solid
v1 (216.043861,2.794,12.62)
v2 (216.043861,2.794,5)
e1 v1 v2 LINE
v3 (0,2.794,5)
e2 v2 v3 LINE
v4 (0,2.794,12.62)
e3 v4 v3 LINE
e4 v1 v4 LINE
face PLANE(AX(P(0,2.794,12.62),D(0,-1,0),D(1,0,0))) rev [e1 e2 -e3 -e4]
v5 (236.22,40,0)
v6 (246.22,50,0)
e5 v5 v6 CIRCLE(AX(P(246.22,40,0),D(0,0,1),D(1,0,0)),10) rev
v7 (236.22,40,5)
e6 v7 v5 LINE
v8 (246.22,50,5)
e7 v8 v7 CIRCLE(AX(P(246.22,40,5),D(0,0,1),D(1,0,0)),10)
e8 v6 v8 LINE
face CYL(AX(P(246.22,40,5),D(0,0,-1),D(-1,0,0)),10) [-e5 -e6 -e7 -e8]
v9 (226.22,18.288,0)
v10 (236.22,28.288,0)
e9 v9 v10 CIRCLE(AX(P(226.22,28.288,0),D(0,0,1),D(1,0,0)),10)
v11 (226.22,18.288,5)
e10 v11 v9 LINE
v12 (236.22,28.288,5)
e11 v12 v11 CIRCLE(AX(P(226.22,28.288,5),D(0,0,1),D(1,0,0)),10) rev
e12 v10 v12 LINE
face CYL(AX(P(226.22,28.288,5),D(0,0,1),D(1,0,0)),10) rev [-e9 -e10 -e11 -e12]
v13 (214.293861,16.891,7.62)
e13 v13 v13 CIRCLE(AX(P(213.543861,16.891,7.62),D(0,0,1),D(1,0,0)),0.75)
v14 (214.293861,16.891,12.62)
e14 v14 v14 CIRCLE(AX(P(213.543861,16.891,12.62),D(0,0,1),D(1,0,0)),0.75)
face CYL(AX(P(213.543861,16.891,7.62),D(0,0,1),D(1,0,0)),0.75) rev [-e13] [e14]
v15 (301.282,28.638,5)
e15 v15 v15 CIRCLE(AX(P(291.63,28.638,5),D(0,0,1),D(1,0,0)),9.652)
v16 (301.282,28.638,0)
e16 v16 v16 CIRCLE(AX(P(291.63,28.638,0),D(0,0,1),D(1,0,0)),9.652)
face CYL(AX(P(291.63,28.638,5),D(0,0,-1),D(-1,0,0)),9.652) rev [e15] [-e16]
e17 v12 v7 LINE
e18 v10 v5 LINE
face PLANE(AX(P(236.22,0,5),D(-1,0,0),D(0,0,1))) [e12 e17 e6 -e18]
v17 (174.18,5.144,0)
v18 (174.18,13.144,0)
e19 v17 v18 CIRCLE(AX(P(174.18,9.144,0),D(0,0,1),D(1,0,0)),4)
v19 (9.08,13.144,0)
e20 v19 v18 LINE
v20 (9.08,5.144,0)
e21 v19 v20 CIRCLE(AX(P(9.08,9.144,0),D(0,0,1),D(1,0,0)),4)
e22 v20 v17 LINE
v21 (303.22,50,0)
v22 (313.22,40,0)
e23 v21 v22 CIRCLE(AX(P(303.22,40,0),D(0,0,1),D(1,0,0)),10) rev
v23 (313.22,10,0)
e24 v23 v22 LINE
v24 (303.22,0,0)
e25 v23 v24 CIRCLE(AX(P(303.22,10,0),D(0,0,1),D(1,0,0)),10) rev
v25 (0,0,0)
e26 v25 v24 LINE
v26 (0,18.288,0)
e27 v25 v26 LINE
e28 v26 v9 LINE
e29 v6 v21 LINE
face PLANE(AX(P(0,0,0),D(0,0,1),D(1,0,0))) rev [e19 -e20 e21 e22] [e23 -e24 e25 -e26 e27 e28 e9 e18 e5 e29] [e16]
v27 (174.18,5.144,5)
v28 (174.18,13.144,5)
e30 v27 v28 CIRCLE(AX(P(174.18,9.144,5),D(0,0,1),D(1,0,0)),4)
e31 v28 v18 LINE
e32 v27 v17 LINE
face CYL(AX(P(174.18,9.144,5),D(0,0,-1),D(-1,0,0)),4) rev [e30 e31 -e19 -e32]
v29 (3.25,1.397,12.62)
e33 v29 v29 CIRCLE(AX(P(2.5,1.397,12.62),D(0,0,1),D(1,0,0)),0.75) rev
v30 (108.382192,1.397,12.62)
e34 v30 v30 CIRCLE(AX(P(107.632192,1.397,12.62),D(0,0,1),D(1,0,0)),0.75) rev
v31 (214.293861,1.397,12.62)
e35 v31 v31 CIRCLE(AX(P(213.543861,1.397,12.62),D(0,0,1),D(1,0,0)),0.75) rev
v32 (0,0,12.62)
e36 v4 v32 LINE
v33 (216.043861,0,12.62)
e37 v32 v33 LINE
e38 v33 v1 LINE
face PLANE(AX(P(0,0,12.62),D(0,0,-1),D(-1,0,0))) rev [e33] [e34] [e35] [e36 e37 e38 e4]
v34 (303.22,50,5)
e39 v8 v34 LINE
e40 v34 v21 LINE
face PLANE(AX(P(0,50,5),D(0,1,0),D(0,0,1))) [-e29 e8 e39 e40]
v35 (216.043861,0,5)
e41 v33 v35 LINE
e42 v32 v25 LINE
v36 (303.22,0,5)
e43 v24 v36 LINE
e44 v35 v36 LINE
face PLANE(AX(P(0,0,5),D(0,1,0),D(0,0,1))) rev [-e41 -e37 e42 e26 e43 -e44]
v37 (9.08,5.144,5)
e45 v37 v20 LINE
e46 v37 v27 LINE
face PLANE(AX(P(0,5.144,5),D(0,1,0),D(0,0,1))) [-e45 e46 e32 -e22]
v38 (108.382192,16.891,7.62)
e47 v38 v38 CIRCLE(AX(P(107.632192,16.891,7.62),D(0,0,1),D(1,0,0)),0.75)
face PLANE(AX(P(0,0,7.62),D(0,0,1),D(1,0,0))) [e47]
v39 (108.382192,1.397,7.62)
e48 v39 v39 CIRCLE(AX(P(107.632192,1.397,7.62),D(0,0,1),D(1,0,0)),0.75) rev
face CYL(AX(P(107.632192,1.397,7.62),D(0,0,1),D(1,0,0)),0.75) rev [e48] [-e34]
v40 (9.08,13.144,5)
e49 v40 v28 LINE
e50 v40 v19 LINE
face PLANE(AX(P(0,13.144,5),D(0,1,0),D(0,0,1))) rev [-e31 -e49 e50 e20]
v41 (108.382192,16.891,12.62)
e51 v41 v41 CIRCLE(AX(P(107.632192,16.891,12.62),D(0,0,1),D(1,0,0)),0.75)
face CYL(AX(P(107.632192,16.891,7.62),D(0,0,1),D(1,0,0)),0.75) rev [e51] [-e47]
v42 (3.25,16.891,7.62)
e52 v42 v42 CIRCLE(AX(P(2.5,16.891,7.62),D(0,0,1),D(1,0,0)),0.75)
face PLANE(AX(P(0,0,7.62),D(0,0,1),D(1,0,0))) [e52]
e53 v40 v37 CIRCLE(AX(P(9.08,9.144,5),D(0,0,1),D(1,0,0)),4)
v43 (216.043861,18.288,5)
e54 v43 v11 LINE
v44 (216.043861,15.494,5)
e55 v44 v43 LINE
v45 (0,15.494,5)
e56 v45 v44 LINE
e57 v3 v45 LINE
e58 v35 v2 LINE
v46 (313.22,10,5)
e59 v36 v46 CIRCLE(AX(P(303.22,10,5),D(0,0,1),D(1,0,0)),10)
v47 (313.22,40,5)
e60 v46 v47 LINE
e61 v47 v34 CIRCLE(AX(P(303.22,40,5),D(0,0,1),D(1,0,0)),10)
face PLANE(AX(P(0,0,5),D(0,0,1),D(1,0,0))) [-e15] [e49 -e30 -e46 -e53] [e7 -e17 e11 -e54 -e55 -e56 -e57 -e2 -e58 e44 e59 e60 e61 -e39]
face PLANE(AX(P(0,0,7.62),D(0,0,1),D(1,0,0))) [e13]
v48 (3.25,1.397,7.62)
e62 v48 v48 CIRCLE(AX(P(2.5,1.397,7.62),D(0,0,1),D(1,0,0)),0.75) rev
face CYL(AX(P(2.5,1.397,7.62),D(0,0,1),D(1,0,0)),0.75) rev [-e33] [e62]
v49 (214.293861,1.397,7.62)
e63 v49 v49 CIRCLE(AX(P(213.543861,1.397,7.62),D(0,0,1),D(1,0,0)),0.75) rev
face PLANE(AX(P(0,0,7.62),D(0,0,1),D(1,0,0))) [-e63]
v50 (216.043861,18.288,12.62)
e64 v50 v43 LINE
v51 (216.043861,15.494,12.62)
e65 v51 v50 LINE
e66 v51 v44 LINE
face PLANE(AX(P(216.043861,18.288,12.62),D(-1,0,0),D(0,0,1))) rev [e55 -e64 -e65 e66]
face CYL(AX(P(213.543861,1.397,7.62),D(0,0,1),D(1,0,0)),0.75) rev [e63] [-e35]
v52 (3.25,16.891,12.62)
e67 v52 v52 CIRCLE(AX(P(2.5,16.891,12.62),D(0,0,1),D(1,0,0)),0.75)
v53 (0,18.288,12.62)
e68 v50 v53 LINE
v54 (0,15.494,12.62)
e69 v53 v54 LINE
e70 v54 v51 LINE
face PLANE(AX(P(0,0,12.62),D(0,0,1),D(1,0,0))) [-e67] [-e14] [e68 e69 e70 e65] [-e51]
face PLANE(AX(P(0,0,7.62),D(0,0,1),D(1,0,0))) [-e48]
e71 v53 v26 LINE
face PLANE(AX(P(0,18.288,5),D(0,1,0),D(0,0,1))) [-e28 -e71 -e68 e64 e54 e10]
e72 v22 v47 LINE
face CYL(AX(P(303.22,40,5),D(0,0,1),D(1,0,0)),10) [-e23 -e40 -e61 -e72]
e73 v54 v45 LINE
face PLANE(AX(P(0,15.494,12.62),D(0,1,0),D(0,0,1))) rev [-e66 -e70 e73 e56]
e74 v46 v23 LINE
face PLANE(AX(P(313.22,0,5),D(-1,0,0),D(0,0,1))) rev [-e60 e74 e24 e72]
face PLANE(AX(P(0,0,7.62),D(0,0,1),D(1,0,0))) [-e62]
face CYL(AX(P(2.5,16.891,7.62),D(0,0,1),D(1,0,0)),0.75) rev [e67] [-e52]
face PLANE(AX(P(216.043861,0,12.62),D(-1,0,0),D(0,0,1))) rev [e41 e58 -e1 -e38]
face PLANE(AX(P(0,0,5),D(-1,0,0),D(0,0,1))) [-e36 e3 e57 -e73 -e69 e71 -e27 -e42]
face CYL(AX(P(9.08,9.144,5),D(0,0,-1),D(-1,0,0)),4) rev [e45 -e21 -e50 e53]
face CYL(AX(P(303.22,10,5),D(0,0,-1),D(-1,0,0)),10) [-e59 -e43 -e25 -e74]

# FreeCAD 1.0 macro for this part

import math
import FreeCAD as App
import Part
import Sketcher
from FreeCAD import Vector


def edges_at(feature, points):
    """Names of the edges that pass closest to the given points."""
    edges = feature.Shape.Edges
    near = lambda p: min(range(len(edges)), key=lambda i: edges[i].distToShape(Part.Vertex(*p))[0])
    return sorted({f"Edge{near(p) + 1}" for p in points})

doc = App.newDocument("Part")
params = doc.addObject("Spreadsheet::Sheet", "Params")
for row, (alias, value) in enumerate([
    ("sketch1_radius", "4 mm"),
    ("sketch1_width", "77 mm"),
    ("sketch1_height", "50 mm"),
    ("sketch1_width2", "165.1 mm"),
    ("sketch1_width3", "313.22 mm"),
    ("pad1_length", "5 mm"),
    ("fillet_radius", "10 mm"),
    ("pad2_length", "7.62 mm"),
    ("sketch3_diameter", "1.5 mm"),
    ("pocket1_length", "5 mm"),
], start=1):
    params.set(f"A{row}", alias)
    params.set(f"B{row}", "=" + value)
    params.setAlias(f"B{row}", alias)

body = doc.addObject("PartDesign::Body", "Body")

sketch1 = body.newObject("Sketcher::SketchObject", "Sketch")
sketch1.AttachmentSupport = (doc.getObject("XY_Plane"), [""])
sketch1.MapMode = "FlatFace"
sketch1.addGeometry([
    Part.LineSegment(Vector(0, 18.3, 0), Vector(0, 0, 0)),
    Part.LineSegment(Vector(0, 0, 0), Vector(313.2, 0, 0)),
    Part.LineSegment(Vector(313.2, 0, 0), Vector(313.2, 50, 0)),
    Part.LineSegment(Vector(313.2, 50, 0), Vector(236.2, 50, 0)),
    Part.LineSegment(Vector(236.2, 50, 0), Vector(236.2, 18.3, 0)),
    Part.LineSegment(Vector(236.2, 18.3, 0), Vector(0, 18.3, 0)),
    Part.ArcOfCircle(Part.Circle(Vector(174.2, 9.1, 0), Vector(0, 0, 1), 4), math.radians(-90), math.radians(90)),
    Part.LineSegment(Vector(174.2, 5.1, 0), Vector(9.1, 5.1, 0)),
    Part.ArcOfCircle(Part.Circle(Vector(9.1, 9.1, 0), Vector(0, 0, 1), 4), math.radians(90), math.radians(270)),
    Part.LineSegment(Vector(9.1, 13.1, 0), Vector(174.2, 13.1, 0)),
    Part.Circle(Vector(291.6, 28.6, 0), Vector(0, 0, 1), 9.7),
], False)
sketch1.addConstraint([
    Sketcher.Constraint("Coincident", 0, 2, 1, 1),
    Sketcher.Constraint("Coincident", 1, 2, 2, 1),
    Sketcher.Constraint("Coincident", 2, 2, 3, 1),
    Sketcher.Constraint("Coincident", 3, 2, 4, 1),
    Sketcher.Constraint("Coincident", 4, 2, 5, 1),
    Sketcher.Constraint("Coincident", 5, 2, 0, 1),
    Sketcher.Constraint("Tangent", 6, 1, 7, 1),
    Sketcher.Constraint("Tangent", 7, 2, 8, 2),
    Sketcher.Constraint("Tangent", 8, 1, 9, 1),
    Sketcher.Constraint("Tangent", 9, 2, 6, 2),
    Sketcher.Constraint("Vertical", 0),
    Sketcher.Constraint("Horizontal", 1),
    Sketcher.Constraint("Vertical", 2),
    Sketcher.Constraint("Horizontal", 3),
    Sketcher.Constraint("Vertical", 4),
    Sketcher.Constraint("Horizontal", 5),
    Sketcher.Constraint("Horizontal", 7),
    Sketcher.Constraint("Horizontal", 9),
    Sketcher.Constraint("Coincident", 0, 2, -1, 1),
    Sketcher.Constraint("Radius", 6, 4.0),
    Sketcher.Constraint("DistanceX", 3, 2, 3, 1, 77.0),
    Sketcher.Constraint("DistanceY", 2, 1, 2, 2, 50.0),
    Sketcher.Constraint("Diameter", 10, 19.304),
    Sketcher.Constraint("DistanceX", 7, 2, 7, 1, 165.1),
    Sketcher.Constraint("DistanceX", 1, 1, 1, 2, 313.22),
    Sketcher.Constraint("DistanceY", 0, 2, 0, 1, 18.288),
    Sketcher.Constraint("DistanceX", -1, 1, 6, 3, 174.18),
    Sketcher.Constraint("DistanceX", -1, 1, 10, 3, 291.63),
    Sketcher.Constraint("DistanceY", 4, 2, 10, 3, 10.35),
    Sketcher.Constraint("DistanceY", -1, 1, 6, 3, 9.144),
])
sketch1.setExpression("Constraints[19]", "Params.sketch1_radius")
sketch1.setExpression("Constraints[20]", "Params.sketch1_width")
sketch1.setExpression("Constraints[21]", "Params.sketch1_height")
sketch1.setExpression("Constraints[23]", "Params.sketch1_width2")
sketch1.setExpression("Constraints[24]", "Params.sketch1_width3")
pad1 = body.newObject("PartDesign::Pad", "Pad")
pad1.Profile = sketch1
pad1.setExpression("Length", "Params.pad1_length")
doc.recompute()

fillet = body.newObject("PartDesign::Fillet", "Fillet")
fillet.Base = (pad1, edges_at(pad1, [
    (236.22, 18.288, 2.5),
    (236.22, 50, 2.5),
    (313.22, 50, 2.5),
    (313.22, 0, 2.5),
]))
fillet.setExpression("Radius", "Params.fillet_radius")

sketch2 = body.newObject("Sketcher::SketchObject", "Sketch001")
sketch2.AttachmentSupport = (doc.getObject("XY_Plane"), [""])
sketch2.MapMode = "FlatFace"
sketch2.AttachmentOffset = App.Placement(Vector(0, 0, 5), App.Rotation())
sketch2.addGeometry([
    Part.LineSegment(Vector(0, 18.3, 0), Vector(0, 15.5, 0)),
    Part.LineSegment(Vector(0, 15.5, 0), Vector(216, 15.5, 0)),
    Part.LineSegment(Vector(216, 15.5, 0), Vector(216, 18.3, 0)),
    Part.LineSegment(Vector(216, 18.3, 0), Vector(0, 18.3, 0)),
    Part.LineSegment(Vector(0, 2.8, 0), Vector(0, 0, 0)),
    Part.LineSegment(Vector(0, 0, 0), Vector(216, 0, 0)),
    Part.LineSegment(Vector(216, 0, 0), Vector(216, 2.8, 0)),
    Part.LineSegment(Vector(216, 2.8, 0), Vector(0, 2.8, 0)),
], False)
sketch2.addConstraint([
    Sketcher.Constraint("Coincident", 0, 2, 1, 1),
    Sketcher.Constraint("Coincident", 1, 2, 2, 1),
    Sketcher.Constraint("Coincident", 2, 2, 3, 1),
    Sketcher.Constraint("Coincident", 3, 2, 0, 1),
    Sketcher.Constraint("Coincident", 4, 2, 5, 1),
    Sketcher.Constraint("Coincident", 5, 2, 6, 1),
    Sketcher.Constraint("Coincident", 6, 2, 7, 1),
    Sketcher.Constraint("Coincident", 7, 2, 4, 1),
    Sketcher.Constraint("Vertical", 0),
    Sketcher.Constraint("Horizontal", 1),
    Sketcher.Constraint("Vertical", 2),
    Sketcher.Constraint("Horizontal", 3),
    Sketcher.Constraint("Vertical", 4),
    Sketcher.Constraint("Horizontal", 5),
    Sketcher.Constraint("Vertical", 6),
    Sketcher.Constraint("Horizontal", 7),
    Sketcher.Constraint("Coincident", 4, 2, -1, 1),
    Sketcher.Constraint("PointOnObject", 0, 2, -2),
    Sketcher.Constraint("Vertical", 2, 2, 5, 2),
    Sketcher.Constraint("Equal", 2, 4),
    Sketcher.Constraint("DistanceY", 6, 2, 1, 2, 12.7),
    Sketcher.Constraint("DistanceY", 0, 2, 0, 1, 2.794),
    Sketcher.Constraint("DistanceX", 1, 1, 1, 2, 216.043861),
])
pad2 = body.newObject("PartDesign::Pad", "Pad001")
pad2.Profile = sketch2
pad2.setExpression("Length", "Params.pad2_length")

sketch3 = body.newObject("Sketcher::SketchObject", "Sketch002")
sketch3.AttachmentSupport = (doc.getObject("XY_Plane"), [""])
sketch3.MapMode = "FlatFace"
sketch3.AttachmentOffset = App.Placement(Vector(0, 0, 12.62), App.Rotation())
sketch3.addGeometry([
    Part.Circle(Vector(2.5, 16.9, 0), Vector(0, 0, 1), 0.8),
    Part.Circle(Vector(2.5, 1.4, 0), Vector(0, 0, 1), 0.8),
    Part.Circle(Vector(107.6, 16.9, 0), Vector(0, 0, 1), 0.8),
    Part.Circle(Vector(107.6, 1.4, 0), Vector(0, 0, 1), 0.8),
    Part.Circle(Vector(213.5, 16.9, 0), Vector(0, 0, 1), 0.8),
    Part.Circle(Vector(213.5, 1.4, 0), Vector(0, 0, 1), 0.8),
], False)
sketch3.addConstraint([
    Sketcher.Constraint("Equal", 0, 1),
    Sketcher.Constraint("Equal", 1, 2),
    Sketcher.Constraint("Equal", 2, 3),
    Sketcher.Constraint("Equal", 3, 4),
    Sketcher.Constraint("Equal", 4, 5),
    Sketcher.Constraint("Horizontal", 0, 3, 2, 3),
    Sketcher.Constraint("Horizontal", 1, 3, 3, 3),
    Sketcher.Constraint("Horizontal", 2, 3, 4, 3),
    Sketcher.Constraint("Horizontal", 3, 3, 5, 3),
    Sketcher.Constraint("Vertical", 0, 3, 1, 3),
    Sketcher.Constraint("Vertical", 2, 3, 3, 3),
    Sketcher.Constraint("Vertical", 4, 3, 5, 3),
    Sketcher.Constraint("Diameter", 0, 1.5),
    Sketcher.Constraint("DistanceX", -1, 1, 0, 3, 2.5),
    Sketcher.Constraint("DistanceY", -1, 1, 0, 3, 16.891),
    Sketcher.Constraint("DistanceY", -1, 1, 1, 3, 1.397),
    Sketcher.Constraint("DistanceX", -1, 1, 4, 3, 213.543861),
    Sketcher.Constraint("DistanceX", 2, 3, 4, 3, 105.911669),
])
sketch3.setExpression("Constraints[12]", "Params.sketch3_diameter")
pocket1 = body.newObject("PartDesign::Pocket", "Pocket")
pocket1.Profile = sketch3
pocket1.setExpression("Length", "Params.pocket1_length")

doc.recompute()
